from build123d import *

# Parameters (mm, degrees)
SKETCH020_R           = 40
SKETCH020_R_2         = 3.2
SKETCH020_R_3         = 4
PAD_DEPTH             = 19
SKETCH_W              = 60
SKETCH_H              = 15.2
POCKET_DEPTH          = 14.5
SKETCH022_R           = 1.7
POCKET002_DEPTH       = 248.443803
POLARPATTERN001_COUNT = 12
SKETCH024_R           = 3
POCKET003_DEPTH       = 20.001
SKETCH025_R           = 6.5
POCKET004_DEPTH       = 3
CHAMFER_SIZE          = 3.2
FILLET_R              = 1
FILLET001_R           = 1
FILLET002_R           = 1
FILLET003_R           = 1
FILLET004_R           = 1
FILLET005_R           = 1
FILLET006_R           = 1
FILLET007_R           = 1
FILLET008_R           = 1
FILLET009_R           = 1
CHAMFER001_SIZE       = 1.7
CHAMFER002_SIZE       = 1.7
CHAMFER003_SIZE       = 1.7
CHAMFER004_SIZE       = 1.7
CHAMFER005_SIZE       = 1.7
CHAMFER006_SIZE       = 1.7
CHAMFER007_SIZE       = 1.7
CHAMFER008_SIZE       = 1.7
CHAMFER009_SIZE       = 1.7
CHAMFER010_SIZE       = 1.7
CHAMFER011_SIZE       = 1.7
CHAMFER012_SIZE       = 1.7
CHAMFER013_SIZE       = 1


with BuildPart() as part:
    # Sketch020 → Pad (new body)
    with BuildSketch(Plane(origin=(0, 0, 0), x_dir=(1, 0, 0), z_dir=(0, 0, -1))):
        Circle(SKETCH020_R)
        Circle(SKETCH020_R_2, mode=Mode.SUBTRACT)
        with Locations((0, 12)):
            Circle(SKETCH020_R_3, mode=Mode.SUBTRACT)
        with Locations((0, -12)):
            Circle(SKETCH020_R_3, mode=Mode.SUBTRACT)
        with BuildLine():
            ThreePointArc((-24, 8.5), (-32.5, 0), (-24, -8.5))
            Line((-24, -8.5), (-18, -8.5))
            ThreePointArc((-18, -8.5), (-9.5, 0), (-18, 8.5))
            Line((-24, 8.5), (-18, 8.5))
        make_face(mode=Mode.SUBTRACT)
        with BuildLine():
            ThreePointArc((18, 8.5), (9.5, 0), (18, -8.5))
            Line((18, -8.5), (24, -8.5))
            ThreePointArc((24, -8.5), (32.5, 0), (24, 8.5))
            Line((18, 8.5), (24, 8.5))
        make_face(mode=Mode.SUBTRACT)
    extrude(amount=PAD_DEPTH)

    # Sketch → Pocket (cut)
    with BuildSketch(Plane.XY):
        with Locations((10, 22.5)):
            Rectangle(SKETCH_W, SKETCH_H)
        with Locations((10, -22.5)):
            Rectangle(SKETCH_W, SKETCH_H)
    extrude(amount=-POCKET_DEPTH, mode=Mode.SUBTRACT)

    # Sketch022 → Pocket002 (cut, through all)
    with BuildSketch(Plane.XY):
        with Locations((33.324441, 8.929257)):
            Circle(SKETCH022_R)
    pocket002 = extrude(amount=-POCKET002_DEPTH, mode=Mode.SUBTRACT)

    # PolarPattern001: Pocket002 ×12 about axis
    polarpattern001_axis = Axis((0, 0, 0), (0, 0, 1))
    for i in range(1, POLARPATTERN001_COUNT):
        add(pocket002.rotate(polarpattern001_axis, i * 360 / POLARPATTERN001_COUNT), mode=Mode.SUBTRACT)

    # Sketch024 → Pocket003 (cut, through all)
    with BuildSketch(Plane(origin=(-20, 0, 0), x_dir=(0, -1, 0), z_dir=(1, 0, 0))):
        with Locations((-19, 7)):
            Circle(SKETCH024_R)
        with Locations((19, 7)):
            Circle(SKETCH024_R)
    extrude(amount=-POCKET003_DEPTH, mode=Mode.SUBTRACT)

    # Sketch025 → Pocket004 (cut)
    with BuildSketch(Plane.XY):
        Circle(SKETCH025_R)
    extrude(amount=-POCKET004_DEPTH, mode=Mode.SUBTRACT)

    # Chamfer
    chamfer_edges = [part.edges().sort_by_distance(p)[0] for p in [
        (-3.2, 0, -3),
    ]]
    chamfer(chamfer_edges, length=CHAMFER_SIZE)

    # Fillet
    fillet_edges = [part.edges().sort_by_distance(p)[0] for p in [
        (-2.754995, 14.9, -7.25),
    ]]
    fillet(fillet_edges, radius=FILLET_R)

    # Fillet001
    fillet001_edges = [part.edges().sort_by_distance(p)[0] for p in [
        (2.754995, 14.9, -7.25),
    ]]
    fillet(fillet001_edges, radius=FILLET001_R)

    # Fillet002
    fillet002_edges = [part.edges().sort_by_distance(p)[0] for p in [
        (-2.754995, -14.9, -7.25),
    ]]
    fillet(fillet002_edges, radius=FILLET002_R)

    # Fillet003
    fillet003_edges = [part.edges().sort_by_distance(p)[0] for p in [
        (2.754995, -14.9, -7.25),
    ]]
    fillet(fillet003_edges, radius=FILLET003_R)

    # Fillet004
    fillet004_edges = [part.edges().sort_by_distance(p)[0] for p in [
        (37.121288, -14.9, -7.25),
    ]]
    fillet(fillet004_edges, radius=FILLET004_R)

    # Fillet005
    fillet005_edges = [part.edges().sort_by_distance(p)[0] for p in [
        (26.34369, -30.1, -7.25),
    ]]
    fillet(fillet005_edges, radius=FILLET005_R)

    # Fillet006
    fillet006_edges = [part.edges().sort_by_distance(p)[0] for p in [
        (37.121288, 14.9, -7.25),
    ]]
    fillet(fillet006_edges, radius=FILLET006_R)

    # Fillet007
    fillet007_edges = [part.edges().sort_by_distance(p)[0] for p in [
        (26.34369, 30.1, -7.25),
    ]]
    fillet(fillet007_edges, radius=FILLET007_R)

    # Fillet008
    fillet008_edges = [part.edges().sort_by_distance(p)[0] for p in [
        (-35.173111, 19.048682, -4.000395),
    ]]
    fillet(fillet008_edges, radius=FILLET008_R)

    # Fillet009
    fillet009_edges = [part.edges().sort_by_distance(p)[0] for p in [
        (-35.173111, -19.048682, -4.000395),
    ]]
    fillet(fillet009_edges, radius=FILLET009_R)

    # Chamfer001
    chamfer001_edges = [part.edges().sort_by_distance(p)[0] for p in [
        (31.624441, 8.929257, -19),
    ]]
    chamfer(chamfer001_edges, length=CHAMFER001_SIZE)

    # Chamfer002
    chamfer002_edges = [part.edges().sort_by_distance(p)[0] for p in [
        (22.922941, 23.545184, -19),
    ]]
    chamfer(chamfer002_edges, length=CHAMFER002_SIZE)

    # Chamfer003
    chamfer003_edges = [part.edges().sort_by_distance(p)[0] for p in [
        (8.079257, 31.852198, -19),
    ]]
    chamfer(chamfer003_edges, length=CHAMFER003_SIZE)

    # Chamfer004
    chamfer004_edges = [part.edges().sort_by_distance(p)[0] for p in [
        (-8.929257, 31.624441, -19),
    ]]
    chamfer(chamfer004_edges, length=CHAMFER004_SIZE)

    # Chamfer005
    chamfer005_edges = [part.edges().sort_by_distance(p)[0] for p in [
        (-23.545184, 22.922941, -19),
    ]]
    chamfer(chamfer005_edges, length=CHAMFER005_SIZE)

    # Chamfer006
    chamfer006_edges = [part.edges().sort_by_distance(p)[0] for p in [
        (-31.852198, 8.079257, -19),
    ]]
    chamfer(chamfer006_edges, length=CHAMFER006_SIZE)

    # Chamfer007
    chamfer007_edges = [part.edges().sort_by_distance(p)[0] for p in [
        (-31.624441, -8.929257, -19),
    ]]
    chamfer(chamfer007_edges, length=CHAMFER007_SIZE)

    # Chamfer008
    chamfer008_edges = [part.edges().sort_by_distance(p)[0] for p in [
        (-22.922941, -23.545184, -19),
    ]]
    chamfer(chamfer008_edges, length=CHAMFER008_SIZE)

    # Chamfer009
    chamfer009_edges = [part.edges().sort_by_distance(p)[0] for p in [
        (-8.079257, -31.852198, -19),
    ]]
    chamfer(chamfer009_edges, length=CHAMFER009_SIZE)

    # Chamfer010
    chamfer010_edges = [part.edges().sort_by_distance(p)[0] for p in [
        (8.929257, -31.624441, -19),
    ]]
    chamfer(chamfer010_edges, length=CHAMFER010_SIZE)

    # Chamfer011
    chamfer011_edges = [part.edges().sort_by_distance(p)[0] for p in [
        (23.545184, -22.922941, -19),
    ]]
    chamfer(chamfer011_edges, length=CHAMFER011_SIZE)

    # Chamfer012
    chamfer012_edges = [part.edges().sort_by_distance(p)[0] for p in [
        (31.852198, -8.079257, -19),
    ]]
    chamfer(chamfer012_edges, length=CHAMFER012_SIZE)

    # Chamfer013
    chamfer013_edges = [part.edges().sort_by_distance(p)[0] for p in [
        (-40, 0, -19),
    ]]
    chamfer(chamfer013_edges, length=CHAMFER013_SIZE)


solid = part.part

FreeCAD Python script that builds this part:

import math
import FreeCAD as App
import Part
import Sketcher
from FreeCAD import Vector


def edges_at(feature, points):
    """Names of the edges that pass closest to the given points."""
    edges = feature.Shape.Edges
    near = lambda p: min(range(len(edges)), key=lambda i: edges[i].distToShape(Part.Vertex(*p))[0])
    return sorted({f"Edge{near(p) + 1}" for p in points})


def add_polygon(sketch, points):
    """Adds a closed chain of lines whose ends are joined by coincident constraints."""
    first, n = sketch.GeometryCount, len(points)
    for a, b in zip(points, points[1:] + points[:1]):
        sketch.addGeometry(Part.LineSegment(App.Vector(*a, 0), App.Vector(*b, 0)), False)
    for i in range(n):
        sketch.addConstraint(Sketcher.Constraint("Coincident", first + i, 2, first + (i + 1) % n, 1))

doc = App.newDocument("Part")
body = doc.addObject("PartDesign::Body", "Body")

sketch1 = body.newObject("Sketcher::SketchObject", "Sketch")
sketch1.AttachmentSupport = (doc.getObject("XY_Plane"), [""])
sketch1.MapMode = "FlatFace"
sketch1.addGeometry(Part.Circle(Vector(0, 0, 0), Vector(0, 0, 1), 40), False)
sketch1.addGeometry(Part.Circle(Vector(0, 12, 0), Vector(0, 0, 1), 4), False)
sketch1.addGeometry(Part.ArcOfCircle(Part.Circle(Vector(-24, 0, 0), Vector(0, 0, 1), 8.5), math.radians(90), math.radians(270)), False)
sketch1.addGeometry(Part.LineSegment(Vector(-24, -8.5, 0), Vector(-18, -8.5, 0)), False)
sketch1.addGeometry(Part.ArcOfCircle(Part.Circle(Vector(-18, 0, 0), Vector(0, 0, 1), 8.5), math.radians(-90), math.radians(90)), False)
sketch1.addGeometry(Part.LineSegment(Vector(-18, 8.5, 0), Vector(-24, 8.5, 0)), False)
sketch1.addGeometry(Part.Circle(Vector(0, 0, 0), Vector(0, 0, 1), 3.2), False)
sketch1.addGeometry(Part.ArcOfCircle(Part.Circle(Vector(18, 0, 0), Vector(0, 0, 1), 8.5), math.radians(90), math.radians(270)), False)
sketch1.addGeometry(Part.LineSegment(Vector(18, -8.5, 0), Vector(24, -8.5, 0)), False)
sketch1.addGeometry(Part.ArcOfCircle(Part.Circle(Vector(24, 0, 0), Vector(0, 0, 1), 8.5), math.radians(-90), math.radians(90)), False)
sketch1.addGeometry(Part.LineSegment(Vector(24, 8.5, 0), Vector(18, 8.5, 0)), False)
sketch1.addGeometry(Part.Circle(Vector(0, -12, 0), Vector(0, 0, 1), 4), False)
sketch1.addConstraint(Sketcher.Constraint("Tangent", 2, 2, 3, 1))
sketch1.addConstraint(Sketcher.Constraint("Tangent", 3, 2, 4, 1))
sketch1.addConstraint(Sketcher.Constraint("Tangent", 4, 2, 5, 1))
sketch1.addConstraint(Sketcher.Constraint("Tangent", 5, 2, 2, 1))
sketch1.addConstraint(Sketcher.Constraint("Tangent", 7, 2, 8, 1))
sketch1.addConstraint(Sketcher.Constraint("Tangent", 8, 2, 9, 1))
sketch1.addConstraint(Sketcher.Constraint("Tangent", 9, 2, 10, 1))
sketch1.addConstraint(Sketcher.Constraint("Tangent", 10, 2, 7, 1))
sketch1.addConstraint(Sketcher.Constraint("Horizontal", 3))
sketch1.addConstraint(Sketcher.Constraint("Horizontal", 5))
sketch1.addConstraint(Sketcher.Constraint("Horizontal", 8))
sketch1.addConstraint(Sketcher.Constraint("Horizontal", 10))
sketch1.addConstraint(Sketcher.Constraint("Coincident", 0, 3, -1, 1))
sketch1.addConstraint(Sketcher.Constraint("Coincident", 6, 3, -1, 1))
sketch1.addConstraint(Sketcher.Constraint("Equal", 4, 7))
sketch1.addConstraint(Sketcher.Constraint("Equal", 1, 11))
sketch1.addConstraint(Sketcher.Constraint("Symmetric", 4, 3, 7, 3, -1, 1))
sketch1.addConstraint(Sketcher.Constraint("Symmetric", 1, 3, 11, 3, -1, 1))
sketch1.addConstraint(Sketcher.Constraint("Symmetric", 2, 3, 9, 3, -2))
sketch1.addConstraint(Sketcher.Constraint("PointOnObject", 1, 3, -2))
sketch1.addConstraint(Sketcher.Constraint("Diameter", 0, 80.0))
sketch1.addConstraint(Sketcher.Constraint("Diameter", 1, 8.0))
sketch1.addConstraint(Sketcher.Constraint("Diameter", 6, 6.4))
sketch1.addConstraint(Sketcher.Constraint("Radius", 2, 8.5))
sketch1.addConstraint(Sketcher.Constraint("DistanceX", 3, 1, 3, 2, 6.0))
sketch1.addConstraint(Sketcher.Constraint("DistanceY", -1, 1, 1, 3, 12.0))
sketch1.addConstraint(Sketcher.Constraint("DistanceX", 2, 3, -1, 1, 24.0))
pad1 = body.newObject("PartDesign::Pad", "Pad")
pad1.Profile = sketch1
pad1.Length = 19
pad1.Reversed = True

sketch2 = body.newObject("Sketcher::SketchObject", "Sketch001")
sketch2.AttachmentSupport = (doc.getObject("XY_Plane"), [""])
sketch2.MapMode = "FlatFace"
add_polygon(sketch2, [(-20, 30.1), (-20, 14.9), (40, 14.9), (40, 30.1)])
add_polygon(sketch2, [(-20, -14.9), (-20, -30.1), (40, -30.1), (40, -14.9)])
sketch2.addConstraint(Sketcher.Constraint("Vertical", 0))
sketch2.addConstraint(Sketcher.Constraint("Horizontal", 1))
sketch2.addConstraint(Sketcher.Constraint("Vertical", 2))
sketch2.addConstraint(Sketcher.Constraint("Horizontal", 3))
sketch2.addConstraint(Sketcher.Constraint("Vertical", 4))
sketch2.addConstraint(Sketcher.Constraint("Horizontal", 5))
sketch2.addConstraint(Sketcher.Constraint("Vertical", 6))
sketch2.addConstraint(Sketcher.Constraint("Horizontal", 7))
sketch2.addConstraint(Sketcher.Constraint("Symmetric", 3, 2, 4, 2, -1))
sketch2.addConstraint(Sketcher.Constraint("Symmetric", 1, 2, 6, 2, -1))
sketch2.addConstraint(Sketcher.Constraint("DistanceX", 1, 1, 1, 2, 60.0))
sketch2.addConstraint(Sketcher.Constraint("DistanceY", 0, 2, 0, 1, 15.2))
sketch2.addConstraint(Sketcher.Constraint("DistanceX", 0, 2, -1, 1, 20.0))
sketch2.addConstraint(Sketcher.Constraint("DistanceY", 4, 2, 0, 2, 45.0))
pocket1 = body.newObject("PartDesign::Pocket", "Pocket")
pocket1.Profile = sketch2
pocket1.Length = 14.5

sketch3 = body.newObject("Sketcher::SketchObject", "Sketch002")
sketch3.AttachmentSupport = (doc.getObject("XY_Plane"), [""])
sketch3.MapMode = "FlatFace"
sketch3.addGeometry(Part.Circle(Vector(33.324441, 8.929257, 0), Vector(0, 0, 1), 1.7), False)
sketch3.addConstraint(Sketcher.Constraint("Diameter", 0, 3.4))
sketch3.addConstraint(Sketcher.Constraint("DistanceX", -1, 1, 0, 3, 33.324441))
sketch3.addConstraint(Sketcher.Constraint("DistanceY", -1, 1, 0, 3, 8.929257))
pocket2 = body.newObject("PartDesign::Pocket", "Pocket001")
pocket2.Profile = sketch3
pocket2.Type = "ThroughAll"
doc.recompute()

polarpattern = body.newObject("PartDesign::PolarPattern", "PolarPattern")
polarpattern.Originals = [pocket2]
polarpattern.Axis = (doc.getObject("Z_Axis"), [""])
polarpattern.Angle = 360
polarpattern.Occurrences = 12
body.Tip = polarpattern

sketch4 = body.newObject("Sketcher::SketchObject", "Sketch003")
sketch4.AttachmentSupport = (doc.getObject("YZ_Plane"), [""])
sketch4.MapMode = "FlatFace"
sketch4.AttachmentOffset = App.Placement(Vector(0, 0, -20), App.Rotation())
sketch4.addGeometry(Part.Circle(Vector(19, -7, 0), Vector(0, 0, 1), 3), False)
sketch4.addGeometry(Part.Circle(Vector(-19, -7, 0), Vector(0, 0, 1), 3), False)
sketch4.addConstraint(Sketcher.Constraint("Equal", 0, 1))
sketch4.addConstraint(Sketcher.Constraint("Symmetric", 0, 3, 1, 3, -2))
sketch4.addConstraint(Sketcher.Constraint("Diameter", 0, 6.0))
sketch4.addConstraint(Sketcher.Constraint("DistanceX", -1, 1, 0, 3, 19.0))
sketch4.addConstraint(Sketcher.Constraint("DistanceY", 0, 3, -1, 1, 7.0))
pocket3 = body.newObject("PartDesign::Pocket", "Pocket002")
pocket3.Profile = sketch4
pocket3.Type = "ThroughAll"

sketch5 = body.newObject("Sketcher::SketchObject", "Sketch004")
sketch5.AttachmentSupport = (doc.getObject("XY_Plane"), [""])
sketch5.MapMode = "FlatFace"
sketch5.addGeometry(Part.Circle(Vector(0, 0, 0), Vector(0, 0, 1), 6.5), False)
sketch5.addConstraint(Sketcher.Constraint("Coincident", 0, 3, -1, 1))
sketch5.addConstraint(Sketcher.Constraint("Diameter", 0, 13.0))
pocket4 = body.newObject("PartDesign::Pocket", "Pocket003")
pocket4.Profile = sketch5
pocket4.Length = 3
doc.recompute()

chamfer = body.newObject("PartDesign::Chamfer", "Chamfer")
chamfer.Base = (pocket4, edges_at(pocket4, [(-3.2, 0, -3)]))
chamfer.Size = 3.2
doc.recompute()

fillet = body.newObject("PartDesign::Fillet", "Fillet")
fillet.Base = (chamfer, edges_at(chamfer, [(-2.755, 14.9, -7.25)]))
fillet.Radius = 1
doc.recompute()

fillet2 = body.newObject("PartDesign::Fillet", "Fillet001")
fillet2.Base = (fillet, edges_at(fillet, [(2.755, 14.9, -7.25)]))
fillet2.Radius = 1
doc.recompute()

fillet3 = body.newObject("PartDesign::Fillet", "Fillet002")
fillet3.Base = (fillet2, edges_at(fillet2, [(-2.755, -14.9, -7.25)]))
fillet3.Radius = 1
doc.recompute()

fillet4 = body.newObject("PartDesign::Fillet", "Fillet003")
fillet4.Base = (fillet3, edges_at(fillet3, [(2.755, -14.9, -7.25)]))
fillet4.Radius = 1
doc.recompute()

fillet5 = body.newObject("PartDesign::Fillet", "Fillet004")
fillet5.Base = (fillet4, edges_at(fillet4, [(37.121, -14.9, -7.25)]))
fillet5.Radius = 1
doc.recompute()

fillet6 = body.newObject("PartDesign::Fillet", "Fillet005")
fillet6.Base = (fillet5, edges_at(fillet5, [(26.344, -30.1, -7.25)]))
fillet6.Radius = 1
doc.recompute()

fillet7 = body.newObject("PartDesign::Fillet", "Fillet006")
fillet7.Base = (fillet6, edges_at(fillet6, [(37.121, 14.9, -7.25)]))
fillet7.Radius = 1
doc.recompute()

fillet8 = body.newObject("PartDesign::Fillet", "Fillet007")
fillet8.Base = (fillet7, edges_at(fillet7, [(26.344, 30.1, -7.25)]))
fillet8.Radius = 1
doc.recompute()

fillet9 = body.newObject("PartDesign::Fillet", "Fillet008")
fillet9.Base = (fillet8, edges_at(fillet8, [(-33.407, 22, -7)]))
fillet9.Radius = 1
doc.recompute()

fillet10 = body.newObject("PartDesign::Fillet", "Fillet009")
fillet10.Base = (fillet9, edges_at(fillet9, [(-36.661, -16, -7)]))
fillet10.Radius = 1
doc.recompute()

chamfer2 = body.newObject("PartDesign::Chamfer", "Chamfer001")
chamfer2.Base = (fillet10, edges_at(fillet10, [(31.624, 8.929, -19)]))
chamfer2.Size = 1.7
doc.recompute()

chamfer3 = body.newObject("PartDesign::Chamfer", "Chamfer002")
chamfer3.Base = (chamfer2, edges_at(chamfer2, [(22.923, 23.545, -19)]))
chamfer3.Size = 1.7
doc.recompute()

chamfer4 = body.newObject("PartDesign::Chamfer", "Chamfer003")
chamfer4.Base = (chamfer3, edges_at(chamfer3, [(8.079, 31.852, -19)]))
chamfer4.Size = 1.7
doc.recompute()

chamfer5 = body.newObject("PartDesign::Chamfer", "Chamfer004")
chamfer5.Base = (chamfer4, edges_at(chamfer4, [(-8.929, 31.624, -19)]))
chamfer5.Size = 1.7
doc.recompute()

chamfer6 = body.newObject("PartDesign::Chamfer", "Chamfer005")
chamfer6.Base = (chamfer5, edges_at(chamfer5, [(-23.545, 22.923, -19)]))
chamfer6.Size = 1.7
doc.recompute()

chamfer7 = body.newObject("PartDesign::Chamfer", "Chamfer006")
chamfer7.Base = (chamfer6, edges_at(chamfer6, [(-31.852, 8.079, -19)]))
chamfer7.Size = 1.7
doc.recompute()

chamfer8 = body.newObject("PartDesign::Chamfer", "Chamfer007")
chamfer8.Base = (chamfer7, edges_at(chamfer7, [(-31.624, -8.929, -19)]))
chamfer8.Size = 1.7
doc.recompute()

chamfer9 = body.newObject("PartDesign::Chamfer", "Chamfer008")
chamfer9.Base = (chamfer8, edges_at(chamfer8, [(-22.923, -23.545, -19)]))
chamfer9.Size = 1.7
doc.recompute()

chamfer10 = body.newObject("PartDesign::Chamfer", "Chamfer009")
chamfer10.Base = (chamfer9, edges_at(chamfer9, [(-8.079, -31.852, -19)]))
chamfer10.Size = 1.7
doc.recompute()

chamfer11 = body.newObject("PartDesign::Chamfer", "Chamfer010")
chamfer11.Base = (chamfer10, edges_at(chamfer10, [(8.929, -31.624, -19)]))
chamfer11.Size = 1.7
doc.recompute()

chamfer12 = body.newObject("PartDesign::Chamfer", "Chamfer011")
chamfer12.Base = (chamfer11, edges_at(chamfer11, [(23.545, -22.923, -19)]))
chamfer12.Size = 1.7
doc.recompute()

chamfer13 = body.newObject("PartDesign::Chamfer", "Chamfer012")
chamfer13.Base = (chamfer12, edges_at(chamfer12, [(31.852, -8.079, -19)]))
chamfer13.Size = 1.7
doc.recompute()

chamfer14 = body.newObject("PartDesign::Chamfer", "Chamfer013")
chamfer14.Base = (chamfer13, edges_at(chamfer13, [(-40, 0, -19)]))
chamfer14.Size = 1

doc.recompute()
